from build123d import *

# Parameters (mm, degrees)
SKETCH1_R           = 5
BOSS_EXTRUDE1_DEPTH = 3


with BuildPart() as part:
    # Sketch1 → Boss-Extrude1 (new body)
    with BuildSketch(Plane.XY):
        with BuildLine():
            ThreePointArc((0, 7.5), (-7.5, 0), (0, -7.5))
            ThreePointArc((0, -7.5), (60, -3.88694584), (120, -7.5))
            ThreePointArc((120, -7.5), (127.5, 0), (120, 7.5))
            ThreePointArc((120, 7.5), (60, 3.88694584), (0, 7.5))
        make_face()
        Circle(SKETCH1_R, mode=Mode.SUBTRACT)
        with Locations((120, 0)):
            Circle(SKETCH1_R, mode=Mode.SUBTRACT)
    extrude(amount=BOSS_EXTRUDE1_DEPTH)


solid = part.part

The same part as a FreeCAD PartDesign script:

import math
import FreeCAD as App
import Part
import Sketcher

V = App.Vector
Q = App.Units.Quantity

doc = App.newDocument("Part")
params = doc.addObject("Spreadsheet::Sheet", "Params")
for row, (alias, value) in enumerate([
    ("sketch1_diameter", "10 mm"),
    ("sketch1_radius", "500 mm"),
    ("sketch1_radius2", "7.5 mm"),
    ("pad1_length", "3 mm"),
], start=1):
    params.set(f"A{row}", alias)
    params.set(f"B{row}", "=" + value)
    params.setAlias(f"B{row}", alias)

body = doc.addObject("PartDesign::Body", "Body")

sketch1 = body.newObject("Sketcher::SketchObject", "Sketch")
sketch1.AttachmentSupport = (doc.getObject("XY_Plane"), [""])
sketch1.MapMode = "FlatFace"
sketch1.addGeometry([
    Part.ArcOfCircle(Part.Circle(V(0, 0, 0), V(0, 0, 1), 8), math.radians(90), math.radians(270)),
    Part.ArcOfCircle(Part.Circle(V(60, -504, 0), V(0, 0, 1), 500), math.radians(83.11), math.radians(96.89)),
    Part.ArcOfCircle(Part.Circle(V(120, 0, 0), V(0, 0, 1), 8), math.radians(-90), math.radians(90)),
    Part.ArcOfCircle(Part.Circle(V(60, 504, 0), V(0, 0, 1), 500), math.radians(-96.89), math.radians(-83.11)),
    Part.Circle(V(0, 0, 0), V(0, 0, 1), 5),
    Part.Circle(V(120, 0, 0), V(0, 0, 1), 5),
], False)
sketch1.addConstraint([
    Sketcher.Constraint("Coincident", 0, 2, 1, 2),
    Sketcher.Constraint("Coincident", 1, 1, 2, 1),
    Sketcher.Constraint("Coincident", 2, 2, 3, 2),
    Sketcher.Constraint("Coincident", 3, 1, 0, 1),
    Sketcher.Constraint("Coincident", 0, 3, -1, 1),
    Sketcher.Constraint("Coincident", 4, 3, -1, 1),
    Sketcher.Constraint("Coincident", 5, 3, 2, 3),
    Sketcher.Constraint("Equal", 0, 2),
    Sketcher.Constraint("Equal", 1, 3),
    Sketcher.Constraint("Equal", 4, 5),
    Sketcher.Constraint("Symmetric", 1, 3, 3, 3, -1),
    Sketcher.Constraint("PointOnObject", 2, 3, -1),
    Sketcher.Constraint("PointOnObject", 0, 2, -2),
    Sketcher.Constraint("Vertical", 5, 3, 1, 1),
    Sketcher.Constraint("Diameter", 4, Q("10 mm")),
    Sketcher.Constraint("Radius", 1, Q("500 mm")),
    Sketcher.Constraint("Radius", 0, Q("7.5 mm")),
    Sketcher.Constraint("DistanceX", -1, 1, 1, 3, Q("60 mm")),
])
sketch1.setExpression("Constraints[14]", "Params.sketch1_diameter")
sketch1.setExpression("Constraints[15]", "Params.sketch1_radius")
sketch1.setExpression("Constraints[16]", "Params.sketch1_radius2")
pad1 = body.newObject("PartDesign::Pad", "Pad")
pad1.Profile = sketch1
pad1.setExpression("Length", "Params.pad1_length")

doc.recompute()
